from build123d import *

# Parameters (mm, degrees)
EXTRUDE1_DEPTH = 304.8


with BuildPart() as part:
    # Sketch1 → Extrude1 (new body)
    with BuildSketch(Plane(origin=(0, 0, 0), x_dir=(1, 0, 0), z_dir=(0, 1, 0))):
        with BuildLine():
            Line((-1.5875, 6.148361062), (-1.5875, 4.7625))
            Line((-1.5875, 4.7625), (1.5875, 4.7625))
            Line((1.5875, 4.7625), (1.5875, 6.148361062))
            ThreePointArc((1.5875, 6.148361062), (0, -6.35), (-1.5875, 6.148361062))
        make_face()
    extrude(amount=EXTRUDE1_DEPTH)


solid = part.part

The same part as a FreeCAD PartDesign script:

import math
import FreeCAD as App
import Part
import Sketcher

V = App.Vector
Q = App.Units.Quantity

doc = App.newDocument("Part")
body = doc.addObject("PartDesign::Body", "Body")

# Sketch on XZ plane
sketch1 = body.newObject("Sketcher::SketchObject", "Sketch")
sketch1.AttachmentSupport = (doc.getObject("XZ_Plane"), [""])
sketch1.MapMode = "FlatFace"
sketch1.addGeometry(Part.LineSegment(V(-1.6, -4.8, 0), V(-1.6, -6.1, 0)), False)
sketch1.addGeometry(Part.ArcOfCircle(Part.Circle(V(0, 0, 0), V(0, 0, 1), 6.3), math.radians(-76), math.radians(256)), False)
sketch1.addGeometry(Part.LineSegment(V(1.6, -6.1, 0), V(1.6, -4.8, 0)), False)
sketch1.addGeometry(Part.LineSegment(V(1.6, -4.8, 0), V(-1.6, -4.8, 0)), False)
sketch1.addConstraint(Sketcher.Constraint("Coincident", 0, 2, 1, 2))
sketch1.addConstraint(Sketcher.Constraint("Coincident", 1, 1, 2, 1))
sketch1.addConstraint(Sketcher.Constraint("Coincident", 2, 2, 3, 1))
sketch1.addConstraint(Sketcher.Constraint("Coincident", 3, 2, 0, 1))
sketch1.addConstraint(Sketcher.Constraint("Vertical", 0))
sketch1.addConstraint(Sketcher.Constraint("Vertical", 2))
sketch1.addConstraint(Sketcher.Constraint("Horizontal", 3))
sketch1.addConstraint(Sketcher.Constraint("Coincident", 1, 3, -1, 1))
sketch1.addConstraint(Sketcher.Constraint("Horizontal", 0, 2, 1, 1))
sketch1.addConstraint(Sketcher.Constraint("Radius", 1, Q("0.25 in")))
sketch1.addConstraint(Sketcher.Constraint("DistanceX", 3, 2, 3, 1, Q("0.125 in")))
sketch1.addConstraint(Sketcher.Constraint("DistanceY", 2, 2, -1, 1, Q("0.1875 in")))
pad1 = body.newObject("PartDesign::Pad", "Pad")
pad1.Profile = sketch1
pad1.Length = Q("12 in")
pad1.Reversed = True

doc.recompute()
